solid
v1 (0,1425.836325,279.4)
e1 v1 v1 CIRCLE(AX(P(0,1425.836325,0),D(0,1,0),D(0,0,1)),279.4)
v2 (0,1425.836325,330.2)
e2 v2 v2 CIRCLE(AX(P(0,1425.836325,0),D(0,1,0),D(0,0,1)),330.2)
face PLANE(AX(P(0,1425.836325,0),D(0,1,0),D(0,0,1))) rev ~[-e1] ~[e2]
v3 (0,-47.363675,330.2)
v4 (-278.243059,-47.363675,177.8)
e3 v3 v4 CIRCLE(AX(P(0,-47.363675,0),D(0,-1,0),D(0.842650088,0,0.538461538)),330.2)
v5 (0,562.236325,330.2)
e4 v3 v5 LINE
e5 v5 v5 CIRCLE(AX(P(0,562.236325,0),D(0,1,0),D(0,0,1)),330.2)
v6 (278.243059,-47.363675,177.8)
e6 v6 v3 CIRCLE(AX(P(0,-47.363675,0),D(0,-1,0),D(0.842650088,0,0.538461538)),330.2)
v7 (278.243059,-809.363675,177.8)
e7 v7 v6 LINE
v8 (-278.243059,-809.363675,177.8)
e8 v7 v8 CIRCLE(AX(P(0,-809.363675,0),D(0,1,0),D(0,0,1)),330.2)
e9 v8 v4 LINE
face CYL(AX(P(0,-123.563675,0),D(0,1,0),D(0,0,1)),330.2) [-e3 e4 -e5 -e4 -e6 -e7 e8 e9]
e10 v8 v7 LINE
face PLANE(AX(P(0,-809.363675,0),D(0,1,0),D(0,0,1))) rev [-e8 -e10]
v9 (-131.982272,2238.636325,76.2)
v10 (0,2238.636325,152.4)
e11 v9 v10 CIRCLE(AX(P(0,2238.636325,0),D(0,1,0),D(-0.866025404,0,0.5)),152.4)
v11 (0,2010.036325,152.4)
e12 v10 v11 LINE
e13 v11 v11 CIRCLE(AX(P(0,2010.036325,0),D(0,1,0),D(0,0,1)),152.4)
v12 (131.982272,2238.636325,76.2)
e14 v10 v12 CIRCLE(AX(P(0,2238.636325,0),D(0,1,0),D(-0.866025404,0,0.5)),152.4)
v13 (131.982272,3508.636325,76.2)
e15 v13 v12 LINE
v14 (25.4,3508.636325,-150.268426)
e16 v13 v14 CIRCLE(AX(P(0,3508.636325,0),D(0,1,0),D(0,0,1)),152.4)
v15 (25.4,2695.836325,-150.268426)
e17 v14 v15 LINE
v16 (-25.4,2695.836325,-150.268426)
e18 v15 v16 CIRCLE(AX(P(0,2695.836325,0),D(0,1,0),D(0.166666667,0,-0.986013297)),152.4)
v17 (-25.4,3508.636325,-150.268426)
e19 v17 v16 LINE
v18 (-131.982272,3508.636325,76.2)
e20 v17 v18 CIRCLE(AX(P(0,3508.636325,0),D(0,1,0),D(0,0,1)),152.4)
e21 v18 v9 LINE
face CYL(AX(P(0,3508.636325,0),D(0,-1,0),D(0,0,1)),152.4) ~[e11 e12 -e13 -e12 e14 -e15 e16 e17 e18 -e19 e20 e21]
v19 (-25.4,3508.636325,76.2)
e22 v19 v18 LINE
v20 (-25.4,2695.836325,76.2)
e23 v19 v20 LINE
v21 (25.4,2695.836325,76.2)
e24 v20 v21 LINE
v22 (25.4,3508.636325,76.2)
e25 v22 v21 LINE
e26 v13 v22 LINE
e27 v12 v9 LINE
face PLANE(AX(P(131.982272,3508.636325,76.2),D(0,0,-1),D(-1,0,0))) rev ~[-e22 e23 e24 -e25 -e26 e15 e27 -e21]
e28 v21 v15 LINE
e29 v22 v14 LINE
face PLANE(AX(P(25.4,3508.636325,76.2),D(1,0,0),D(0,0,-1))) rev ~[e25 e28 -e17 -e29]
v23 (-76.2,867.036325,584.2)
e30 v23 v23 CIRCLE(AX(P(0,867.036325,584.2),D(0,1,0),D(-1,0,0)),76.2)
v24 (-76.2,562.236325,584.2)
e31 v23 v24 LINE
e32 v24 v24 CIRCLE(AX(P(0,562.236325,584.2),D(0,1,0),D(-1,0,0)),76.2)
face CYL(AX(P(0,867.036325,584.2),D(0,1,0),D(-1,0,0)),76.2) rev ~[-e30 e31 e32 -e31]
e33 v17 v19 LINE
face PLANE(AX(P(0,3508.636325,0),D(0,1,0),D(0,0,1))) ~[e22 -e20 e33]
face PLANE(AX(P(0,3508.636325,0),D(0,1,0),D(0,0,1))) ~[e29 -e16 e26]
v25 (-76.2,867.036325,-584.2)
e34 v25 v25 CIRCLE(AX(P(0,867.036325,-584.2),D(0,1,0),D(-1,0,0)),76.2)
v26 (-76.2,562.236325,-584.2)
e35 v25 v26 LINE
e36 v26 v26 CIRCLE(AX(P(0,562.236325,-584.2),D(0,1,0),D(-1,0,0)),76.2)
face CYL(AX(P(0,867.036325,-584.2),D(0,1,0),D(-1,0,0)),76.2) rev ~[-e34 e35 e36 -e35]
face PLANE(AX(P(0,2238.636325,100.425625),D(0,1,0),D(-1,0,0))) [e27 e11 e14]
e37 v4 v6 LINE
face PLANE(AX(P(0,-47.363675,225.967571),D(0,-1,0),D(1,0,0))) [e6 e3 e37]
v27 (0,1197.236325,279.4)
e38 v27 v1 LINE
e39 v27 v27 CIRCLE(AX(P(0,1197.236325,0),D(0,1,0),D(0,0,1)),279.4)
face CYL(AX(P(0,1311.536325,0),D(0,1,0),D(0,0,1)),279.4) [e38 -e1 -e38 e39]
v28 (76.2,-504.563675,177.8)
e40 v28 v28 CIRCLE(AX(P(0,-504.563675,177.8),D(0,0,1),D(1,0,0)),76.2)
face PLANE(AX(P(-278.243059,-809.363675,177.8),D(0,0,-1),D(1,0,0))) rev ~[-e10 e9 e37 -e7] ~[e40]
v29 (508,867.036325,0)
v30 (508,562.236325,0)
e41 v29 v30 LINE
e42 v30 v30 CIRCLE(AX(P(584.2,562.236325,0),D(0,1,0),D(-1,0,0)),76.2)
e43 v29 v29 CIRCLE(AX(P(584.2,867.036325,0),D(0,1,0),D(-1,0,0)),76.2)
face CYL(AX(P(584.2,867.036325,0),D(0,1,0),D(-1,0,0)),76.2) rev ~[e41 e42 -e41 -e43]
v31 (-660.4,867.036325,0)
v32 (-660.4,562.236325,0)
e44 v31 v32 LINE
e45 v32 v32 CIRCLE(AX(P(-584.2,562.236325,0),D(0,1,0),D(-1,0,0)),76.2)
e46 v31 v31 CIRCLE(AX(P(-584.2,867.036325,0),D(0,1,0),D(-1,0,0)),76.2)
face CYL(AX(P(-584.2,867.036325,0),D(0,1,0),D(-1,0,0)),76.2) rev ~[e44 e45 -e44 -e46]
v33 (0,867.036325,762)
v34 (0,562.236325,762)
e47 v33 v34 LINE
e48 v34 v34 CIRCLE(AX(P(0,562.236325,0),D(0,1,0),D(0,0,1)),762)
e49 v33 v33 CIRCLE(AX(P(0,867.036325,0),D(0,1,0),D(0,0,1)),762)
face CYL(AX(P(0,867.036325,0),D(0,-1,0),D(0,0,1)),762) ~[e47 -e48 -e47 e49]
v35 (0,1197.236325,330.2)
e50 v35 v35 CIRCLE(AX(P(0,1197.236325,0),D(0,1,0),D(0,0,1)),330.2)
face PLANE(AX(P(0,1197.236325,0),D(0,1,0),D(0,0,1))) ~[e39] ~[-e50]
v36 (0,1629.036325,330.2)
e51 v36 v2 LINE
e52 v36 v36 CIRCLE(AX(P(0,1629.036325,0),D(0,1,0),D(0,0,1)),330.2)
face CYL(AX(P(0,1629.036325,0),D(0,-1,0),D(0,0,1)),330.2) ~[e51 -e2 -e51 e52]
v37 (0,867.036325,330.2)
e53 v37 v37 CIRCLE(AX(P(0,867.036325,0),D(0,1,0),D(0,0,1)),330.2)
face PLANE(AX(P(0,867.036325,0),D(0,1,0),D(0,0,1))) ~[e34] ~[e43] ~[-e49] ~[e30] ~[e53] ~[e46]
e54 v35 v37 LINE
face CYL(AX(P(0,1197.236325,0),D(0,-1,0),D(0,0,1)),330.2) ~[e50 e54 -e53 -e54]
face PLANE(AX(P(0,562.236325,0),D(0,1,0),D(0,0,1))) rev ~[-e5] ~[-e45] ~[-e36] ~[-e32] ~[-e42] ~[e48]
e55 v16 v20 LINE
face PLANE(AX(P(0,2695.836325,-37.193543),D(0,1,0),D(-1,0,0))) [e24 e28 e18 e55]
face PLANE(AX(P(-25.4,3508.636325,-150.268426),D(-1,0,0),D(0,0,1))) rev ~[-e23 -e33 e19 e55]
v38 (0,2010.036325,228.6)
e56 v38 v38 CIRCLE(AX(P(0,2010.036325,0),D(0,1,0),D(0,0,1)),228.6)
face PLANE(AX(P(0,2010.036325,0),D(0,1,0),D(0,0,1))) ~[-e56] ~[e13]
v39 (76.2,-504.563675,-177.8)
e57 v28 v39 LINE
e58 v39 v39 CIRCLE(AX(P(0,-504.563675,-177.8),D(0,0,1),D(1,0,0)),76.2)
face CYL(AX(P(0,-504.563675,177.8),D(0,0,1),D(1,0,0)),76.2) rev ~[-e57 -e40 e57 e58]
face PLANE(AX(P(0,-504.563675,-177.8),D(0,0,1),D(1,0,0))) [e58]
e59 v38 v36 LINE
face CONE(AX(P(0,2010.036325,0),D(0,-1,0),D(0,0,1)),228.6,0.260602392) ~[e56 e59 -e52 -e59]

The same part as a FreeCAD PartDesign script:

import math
import FreeCAD as App
import Part
import Sketcher
from FreeCAD import Vector
Q = App.Units.Quantity

doc = App.newDocument("Part")
body = doc.addObject("PartDesign::Body", "Body")

sketch1 = body.newObject("Sketcher::SketchObject", "Sketch")
sketch1.AttachmentSupport = (doc.getObject("YZ_Plane"), [""])
sketch1.MapMode = "FlatFace"
sketch1.addGeometry([
    Part.LineSegment(Vector(-809, 330, 0), Vector(-809, 0, 0)),
    Part.LineSegment(Vector(-809, 0, 0), Vector(3509, 0, 0)),
    Part.LineSegment(Vector(3509, 0, 0), Vector(3509, 152, 0)),
    Part.LineSegment(Vector(3509, 152, 0), Vector(2010, 152, 0)),
    Part.LineSegment(Vector(2010, 152, 0), Vector(2010, 229, 0)),
    Part.LineSegment(Vector(2010, 229, 0), Vector(1629, 330, 0)),
    Part.LineSegment(Vector(1629, 330, 0), Vector(1426, 330, 0)),
    Part.LineSegment(Vector(1426, 330, 0), Vector(1426, 279, 0)),
    Part.LineSegment(Vector(1426, 279, 0), Vector(1197, 279, 0)),
    Part.LineSegment(Vector(1197, 279, 0), Vector(1197, 330, 0)),
    Part.LineSegment(Vector(1197, 330, 0), Vector(867, 330, 0)),
    Part.LineSegment(Vector(867, 330, 0), Vector(867, 762, 0)),
    Part.LineSegment(Vector(867, 762, 0), Vector(562, 762, 0)),
    Part.LineSegment(Vector(562, 762, 0), Vector(562, 330, 0)),
    Part.LineSegment(Vector(562, 330, 0), Vector(-809, 330, 0)),
], False)
sketch1.addConstraint([
    Sketcher.Constraint("Coincident", 0, 2, 1, 1),
    Sketcher.Constraint("Coincident", 1, 2, 2, 1),
    Sketcher.Constraint("Coincident", 2, 2, 3, 1),
    Sketcher.Constraint("Coincident", 3, 2, 4, 1),
    Sketcher.Constraint("Coincident", 4, 2, 5, 1),
    Sketcher.Constraint("Coincident", 5, 2, 6, 1),
    Sketcher.Constraint("Coincident", 6, 2, 7, 1),
    Sketcher.Constraint("Coincident", 7, 2, 8, 1),
    Sketcher.Constraint("Coincident", 8, 2, 9, 1),
    Sketcher.Constraint("Coincident", 9, 2, 10, 1),
    Sketcher.Constraint("Coincident", 10, 2, 11, 1),
    Sketcher.Constraint("Coincident", 11, 2, 12, 1),
    Sketcher.Constraint("Coincident", 12, 2, 13, 1),
    Sketcher.Constraint("Coincident", 13, 2, 14, 1),
    Sketcher.Constraint("Coincident", 14, 2, 0, 1),
    Sketcher.Constraint("Vertical", 0),
    Sketcher.Constraint("Horizontal", 1),
    Sketcher.Constraint("Vertical", 2),
    Sketcher.Constraint("Horizontal", 3),
    Sketcher.Constraint("Vertical", 4),
    Sketcher.Constraint("Horizontal", 6),
    Sketcher.Constraint("Vertical", 7),
    Sketcher.Constraint("Horizontal", 8),
    Sketcher.Constraint("Vertical", 9),
    Sketcher.Constraint("Horizontal", 10),
    Sketcher.Constraint("Vertical", 11),
    Sketcher.Constraint("Horizontal", 12),
    Sketcher.Constraint("Vertical", 13),
    Sketcher.Constraint("Horizontal", 14),
    Sketcher.Constraint("PointOnObject", 0, 2, -1),
    Sketcher.Constraint("Horizontal", 6, 2, 9, 2),
    Sketcher.Constraint("Horizontal", 10, 2, 13, 2),
    Sketcher.Constraint("Equal", 10, 0),
    Sketcher.Constraint("DistanceX", 1, 1, 1, 2, Q("170 in")),
    Sketcher.Constraint("DistanceX", 3, 2, 3, 1, Q("59 in")),
    Sketcher.Constraint("DistanceX", 6, 2, 6, 1, Q("8 in")),
    Sketcher.Constraint("DistanceX", 8, 2, 8, 1, Q("9 in")),
    Sketcher.Constraint("DistanceX", 10, 2, 10, 1, Q("13 in")),
    Sketcher.Constraint("DistanceX", 12, 2, 12, 1, Q("12 in")),
    Sketcher.Constraint("DistanceX", 14, 2, 14, 1, Q("54 in")),
    Sketcher.Constraint("DistanceY", 2, 1, 2, 2, Q("6 in")),
    Sketcher.Constraint("DistanceY", 4, 1, 4, 2, Q("3 in")),
    Sketcher.Constraint("DistanceY", 7, 2, 7, 1, Q("2 in")),
    Sketcher.Constraint("DistanceY", 11, 1, 11, 2, Q("17 in")),
    Sketcher.Constraint("DistanceX", 0, 2, -1, 1, Q("809.363675 mm")),
])
revolution = body.newObject("PartDesign::Revolution", "Revolution")
revolution.Profile = sketch1
revolution.ReferenceAxis = (sketch1, ["H_Axis"])
revolution.Angle = 360

sketch2 = body.newObject("Sketcher::SketchObject", "Sketch001")
sketch2.AttachmentSupport = (doc.getObject("XZ_Plane"), [""])
sketch2.MapMode = "FlatFace"
sketch2.AttachmentOffset = App.Placement(Vector(0, 0, -867.036325), App.Rotation())
sketch2.addGeometry([
    Part.Circle(Vector(584, 0, 0), Vector(0, 0, 1), 76),
    Part.Circle(Vector(0, 584, 0), Vector(0, 0, 1), 76),
    Part.Circle(Vector(0, -584, 0), Vector(0, 0, 1), 76),
    Part.Circle(Vector(-584, 0, 0), Vector(0, 0, 1), 76),
], False)
sketch2.addConstraint([
    Sketcher.Constraint("Equal", 0, 1),
    Sketcher.Constraint("Equal", 1, 2),
    Sketcher.Constraint("Equal", 2, 3),
    Sketcher.Constraint("Symmetric", 1, 3, 2, 3, -1, 1),
    Sketcher.Constraint("Symmetric", 0, 3, 3, 3, -1, 1),
    Sketcher.Constraint("PointOnObject", 0, 3, -1),
    Sketcher.Constraint("PointOnObject", 1, 3, -2),
    Sketcher.Constraint("Diameter", 0, Q("6 in")),
    Sketcher.Constraint("DistanceX", -1, 1, 0, 3, Q("23 in")),
    Sketcher.Constraint("DistanceY", -1, 1, 1, 3, Q("23 in")),
])
pocket1 = body.newObject("PartDesign::Pocket", "Pocket")
pocket1.Profile = sketch2
pocket1.Type = "ThroughAll"
pocket1.Reversed = True

sketch3 = body.newObject("Sketcher::SketchObject", "Sketch002")
sketch3.AttachmentSupport = (doc.getObject("XZ_Plane"), [""])
sketch3.MapMode = "FlatFace"
sketch3.AttachmentOffset = App.Placement(Vector(0, 0, 809.363675), App.Rotation())
sketch3.addGeometry([
    Part.ArcOfCircle(Part.Circle(Vector(0, 0, 0), Vector(0, 0, 1), 330), math.radians(33), math.radians(147)),
    Part.LineSegment(Vector(-278, 178, 0), Vector(278, 178, 0)),
], False)
sketch3.addConstraint([
    Sketcher.Constraint("Coincident", 0, 1, 1, 2),
    Sketcher.Constraint("Coincident", 1, 1, 0, 2),
    Sketcher.Constraint("Horizontal", 1),
    Sketcher.Constraint("Coincident", 0, 3, -1, 1),
    Sketcher.Constraint("Radius", 0, Q("13 in")),
    Sketcher.Constraint("DistanceY", -1, 1, 0, 1, Q("7 in")),
])
pocket2 = body.newObject("PartDesign::Pocket", "Pocket001")
pocket2.Profile = sketch3
pocket2.Length = Q("30 in")

sketch4 = body.newObject("Sketcher::SketchObject", "Sketch003")
sketch4.AttachmentSupport = (doc.getObject("XY_Plane"), [""])
sketch4.MapMode = "FlatFace"
sketch4.AttachmentOffset = App.Placement(Vector(0, 0, 7 * 25.4), App.Rotation())
sketch4.addGeometry(Part.Circle(Vector(0, -505, 0), Vector(0, 0, 1), 76), False)
sketch4.addConstraint([
    Sketcher.Constraint("PointOnObject", 0, 3, -2),
    Sketcher.Constraint("Diameter", 0, Q("6 in")),
    Sketcher.Constraint("DistanceY", 0, 3, -1, 1, Q("504.563675 mm")),
])
pocket3 = body.newObject("PartDesign::Pocket", "Pocket002")
pocket3.Profile = sketch4
pocket3.Length = Q("14 in")

sketch5 = body.newObject("Sketcher::SketchObject", "Sketch004")
sketch5.AttachmentSupport = (doc.getObject("XZ_Plane"), [""])
sketch5.MapMode = "FlatFace"
sketch5.AttachmentOffset = App.Placement(Vector(0, 0, -3508.636325), App.Rotation())
sketch5.addGeometry([
    Part.ArcOfCircle(Part.Circle(Vector(0, 0, 0), Vector(0, 0, 1), 152), math.radians(30), math.radians(150)),
    Part.LineSegment(Vector(132, 76, 0), Vector(-132, 76, 0)),
], False)
sketch5.addConstraint([
    Sketcher.Constraint("Coincident", 0, 1, 1, 1),
    Sketcher.Constraint("Coincident", 1, 2, 0, 2),
    Sketcher.Constraint("Horizontal", 1),
    Sketcher.Constraint("Coincident", 0, 3, -1, 1),
    Sketcher.Constraint("Radius", 0, Q("6 in")),
    Sketcher.Constraint("DistanceY", -1, 1, 0, 1, Q("3 in")),
])
pocket4 = body.newObject("PartDesign::Pocket", "Pocket003")
pocket4.Profile = sketch5
pocket4.Length = Q("50 in")
pocket4.Reversed = True

sketch6 = body.newObject("Sketcher::SketchObject", "Sketch005")
sketch6.AttachmentSupport = (doc.getObject("XZ_Plane"), [""])
sketch6.MapMode = "FlatFace"
sketch6.AttachmentOffset = App.Placement(Vector(0, 0, -3508.636325), App.Rotation())
sketch6.addGeometry([
    Part.LineSegment(Vector(-25, 76, 0), Vector(25, 76, 0)),
    Part.LineSegment(Vector(25, 76, 0), Vector(25, -150, 0)),
    Part.ArcOfCircle(Part.Circle(Vector(0, 0, 0), Vector(0, 0, 1), 152), math.radians(-99.59), math.radians(-80.41)),
    Part.LineSegment(Vector(-25, -150, 0), Vector(-25, 76, 0)),
], False)
sketch6.addConstraint([
    Sketcher.Constraint("Coincident", 0, 2, 1, 1),
    Sketcher.Constraint("Coincident", 1, 2, 2, 2),
    Sketcher.Constraint("Coincident", 2, 1, 3, 1),
    Sketcher.Constraint("Coincident", 3, 2, 0, 1),
    Sketcher.Constraint("Horizontal", 0),
    Sketcher.Constraint("Vertical", 1),
    Sketcher.Constraint("Vertical", 3),
    Sketcher.Constraint("Coincident", 2, 3, -1, 1),
    Sketcher.Constraint("Horizontal", 1, 2, 2, 1),
    Sketcher.Constraint("Radius", 2, Q("6 in")),
    Sketcher.Constraint("DistanceX", 0, 1, 0, 2, Q("2 in")),
    Sketcher.Constraint("DistanceY", -1, 1, 0, 2, Q("3 in")),
])
pocket5 = body.newObject("PartDesign::Pocket", "Pocket004")
pocket5.Profile = sketch6
pocket5.Length = Q("32 in")
pocket5.Reversed = True

doc.recompute()
